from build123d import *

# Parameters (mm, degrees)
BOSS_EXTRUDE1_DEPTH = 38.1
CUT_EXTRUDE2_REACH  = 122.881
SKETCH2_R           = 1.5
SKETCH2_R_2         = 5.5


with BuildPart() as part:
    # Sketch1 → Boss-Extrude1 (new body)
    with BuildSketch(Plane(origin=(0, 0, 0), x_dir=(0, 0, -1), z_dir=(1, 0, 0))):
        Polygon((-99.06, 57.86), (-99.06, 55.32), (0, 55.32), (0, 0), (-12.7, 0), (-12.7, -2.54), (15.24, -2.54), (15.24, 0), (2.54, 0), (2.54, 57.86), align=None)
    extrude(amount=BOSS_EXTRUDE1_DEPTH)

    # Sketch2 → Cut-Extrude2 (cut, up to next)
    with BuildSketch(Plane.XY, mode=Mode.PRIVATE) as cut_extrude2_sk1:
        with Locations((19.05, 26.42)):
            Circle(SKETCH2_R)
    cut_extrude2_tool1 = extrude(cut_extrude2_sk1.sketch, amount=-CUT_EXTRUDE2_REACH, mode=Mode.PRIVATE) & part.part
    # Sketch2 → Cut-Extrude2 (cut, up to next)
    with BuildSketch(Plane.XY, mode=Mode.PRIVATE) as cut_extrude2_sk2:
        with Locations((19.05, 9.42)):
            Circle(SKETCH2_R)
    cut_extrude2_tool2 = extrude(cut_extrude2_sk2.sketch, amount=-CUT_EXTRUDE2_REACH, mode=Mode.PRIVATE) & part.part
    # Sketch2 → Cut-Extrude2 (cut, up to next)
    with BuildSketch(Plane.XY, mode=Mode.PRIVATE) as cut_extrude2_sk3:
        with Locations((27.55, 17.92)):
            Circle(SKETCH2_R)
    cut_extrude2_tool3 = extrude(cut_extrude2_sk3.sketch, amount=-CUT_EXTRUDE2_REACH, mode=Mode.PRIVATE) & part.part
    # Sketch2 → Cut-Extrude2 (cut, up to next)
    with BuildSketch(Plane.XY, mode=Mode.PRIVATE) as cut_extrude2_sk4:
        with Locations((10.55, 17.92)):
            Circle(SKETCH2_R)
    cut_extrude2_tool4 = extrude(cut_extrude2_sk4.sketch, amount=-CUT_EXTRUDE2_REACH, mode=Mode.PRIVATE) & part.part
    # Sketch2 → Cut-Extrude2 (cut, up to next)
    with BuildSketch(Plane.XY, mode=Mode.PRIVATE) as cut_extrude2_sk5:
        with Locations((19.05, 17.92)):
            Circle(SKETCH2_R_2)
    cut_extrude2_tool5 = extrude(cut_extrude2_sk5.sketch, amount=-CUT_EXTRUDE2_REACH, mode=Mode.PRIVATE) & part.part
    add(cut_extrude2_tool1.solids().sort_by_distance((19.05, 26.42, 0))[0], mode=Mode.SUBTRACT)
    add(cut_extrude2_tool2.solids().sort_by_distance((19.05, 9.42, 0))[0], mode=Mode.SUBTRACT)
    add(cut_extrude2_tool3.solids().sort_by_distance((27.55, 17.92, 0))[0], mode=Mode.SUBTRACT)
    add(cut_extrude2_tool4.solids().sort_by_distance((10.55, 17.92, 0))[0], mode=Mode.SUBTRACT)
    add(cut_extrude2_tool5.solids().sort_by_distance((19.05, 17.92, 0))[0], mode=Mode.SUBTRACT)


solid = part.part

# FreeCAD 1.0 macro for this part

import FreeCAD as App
import Part
import Sketcher
Q = App.Units.Quantity

doc = App.newDocument("Part")
body = doc.addObject("PartDesign::Body", "Body")

sketch1 = doc.addObject("Sketcher::SketchObject", "Sketch")
body.addObject(sketch1)
sketch1.AttachmentSupport = (doc.YZ_Plane, [""])
sketch1.MapMode = "FlatFace"
sketch1.addGeometry(Part.LineSegment(App.Vector(57.9, 99.1, 0), App.Vector(55.3, 99.1, 0)), False)
sketch1.addGeometry(Part.LineSegment(App.Vector(55.3, 99.1, 0), App.Vector(55.3, 0, 0)), False)
sketch1.addGeometry(Part.LineSegment(App.Vector(55.3, 0, 0), App.Vector(0, 0, 0)), False)
sketch1.addGeometry(Part.LineSegment(App.Vector(0, 0, 0), App.Vector(0, 12.7, 0)), False)
sketch1.addGeometry(Part.LineSegment(App.Vector(0, 12.7, 0), App.Vector(-2.5, 12.7, 0)), False)
sketch1.addGeometry(Part.LineSegment(App.Vector(-2.5, 12.7, 0), App.Vector(-2.5, -15.2, 0)), False)
sketch1.addGeometry(Part.LineSegment(App.Vector(-2.5, -15.2, 0), App.Vector(0, -15.2, 0)), False)
sketch1.addGeometry(Part.LineSegment(App.Vector(0, -15.2, 0), App.Vector(0, -2.5, 0)), False)
sketch1.addGeometry(Part.LineSegment(App.Vector(0, -2.5, 0), App.Vector(57.9, -2.5, 0)), False)
sketch1.addGeometry(Part.LineSegment(App.Vector(57.9, -2.5, 0), App.Vector(57.9, 99.1, 0)), False)
sketch1.addConstraint(Sketcher.Constraint("Coincident", 0, 2, 1, 1))
sketch1.addConstraint(Sketcher.Constraint("Coincident", 1, 2, 2, 1))
sketch1.addConstraint(Sketcher.Constraint("Coincident", 2, 2, 3, 1))
sketch1.addConstraint(Sketcher.Constraint("Coincident", 3, 2, 4, 1))
sketch1.addConstraint(Sketcher.Constraint("Coincident", 4, 2, 5, 1))
sketch1.addConstraint(Sketcher.Constraint("Coincident", 5, 2, 6, 1))
sketch1.addConstraint(Sketcher.Constraint("Coincident", 6, 2, 7, 1))
sketch1.addConstraint(Sketcher.Constraint("Coincident", 7, 2, 8, 1))
sketch1.addConstraint(Sketcher.Constraint("Coincident", 8, 2, 9, 1))
sketch1.addConstraint(Sketcher.Constraint("Coincident", 9, 2, 0, 1))
sketch1.addConstraint(Sketcher.Constraint("Horizontal", 0))
sketch1.addConstraint(Sketcher.Constraint("Vertical", 1))
sketch1.addConstraint(Sketcher.Constraint("Horizontal", 2))
sketch1.addConstraint(Sketcher.Constraint("Vertical", 3))
sketch1.addConstraint(Sketcher.Constraint("Horizontal", 4))
sketch1.addConstraint(Sketcher.Constraint("Vertical", 5))
sketch1.addConstraint(Sketcher.Constraint("Horizontal", 6))
sketch1.addConstraint(Sketcher.Constraint("Vertical", 7))
sketch1.addConstraint(Sketcher.Constraint("Horizontal", 8))
sketch1.addConstraint(Sketcher.Constraint("Vertical", 9))
sketch1.addConstraint(Sketcher.Constraint("Coincident", 2, 2, -1, 1))
sketch1.addConstraint(Sketcher.Constraint("PointOnObject", 6, 2, -2))
sketch1.addConstraint(Sketcher.Constraint("Equal", 0, 4))
sketch1.addConstraint(Sketcher.Constraint("Equal", 3, 7))
sketch1.addConstraint(Sketcher.Constraint("DistanceY", 9, 1, 9, 2, Q("4 in")))
sketch1.addConstraint(Sketcher.Constraint("DistanceX", 0, 2, 0, 1, Q("0.1 in")))
sketch1.addConstraint(Sketcher.Constraint("DistanceY", 1, 2, 1, 1, Q("3.9 in")))
sketch1.addConstraint(Sketcher.Constraint("DistanceY", 3, 1, 3, 2, Q("0.5 in")))
sketch1.addConstraint(Sketcher.Constraint("DistanceX", 2, 2, 2, 1, 55.32))
pad1 = doc.addObject("PartDesign::Pad", "Pad")
body.addObject(pad1)
pad1.Profile = sketch1
pad1.Length = Q("1.5 in")

sketch2 = doc.addObject("Sketcher::SketchObject", "Sketch001")
body.addObject(sketch2)
sketch2.AttachmentSupport = (doc.XY_Plane, [""])
sketch2.MapMode = "FlatFace"
sketch2.addGeometry(Part.Circle(App.Vector(19.1, 26.4, 0), App.Vector(0, 0, 1), 1.5), False)
sketch2.addConstraint(Sketcher.Constraint("Diameter", 0, 3.0))
sketch2.addConstraint(Sketcher.Constraint("DistanceX", -1, 1, 0, 3, Q("0.75 in")))
sketch2.addConstraint(Sketcher.Constraint("DistanceY", -1, 1, 0, 3, 26.42))
pocket1 = doc.addObject("PartDesign::Pocket", "Pocket")
body.addObject(pocket1)
pocket1.Profile = sketch2
pocket1.Type = "UpToFirst"

sketch3 = doc.addObject("Sketcher::SketchObject", "Sketch002")
body.addObject(sketch3)
sketch3.AttachmentSupport = (doc.XY_Plane, [""])
sketch3.MapMode = "FlatFace"
sketch3.addGeometry(Part.Circle(App.Vector(19.1, 9.4, 0), App.Vector(0, 0, 1), 1.5), False)
sketch3.addConstraint(Sketcher.Constraint("Diameter", 0, 3.0))
sketch3.addConstraint(Sketcher.Constraint("DistanceX", -1, 1, 0, 3, Q("0.75 in")))
sketch3.addConstraint(Sketcher.Constraint("DistanceY", -1, 1, 0, 3, 9.42))
pocket2 = doc.addObject("PartDesign::Pocket", "Pocket001")
body.addObject(pocket2)
pocket2.Profile = sketch3
pocket2.Type = "UpToFirst"

sketch4 = doc.addObject("Sketcher::SketchObject", "Sketch003")
body.addObject(sketch4)
sketch4.AttachmentSupport = (doc.XY_Plane, [""])
sketch4.MapMode = "FlatFace"
sketch4.addGeometry(Part.Circle(App.Vector(27.6, 17.9, 0), App.Vector(0, 0, 1), 1.5), False)
sketch4.addConstraint(Sketcher.Constraint("Diameter", 0, 3.0))
sketch4.addConstraint(Sketcher.Constraint("DistanceX", -1, 1, 0, 3, 27.55))
sketch4.addConstraint(Sketcher.Constraint("DistanceY", -1, 1, 0, 3, 17.92))
pocket3 = doc.addObject("PartDesign::Pocket", "Pocket002")
body.addObject(pocket3)
pocket3.Profile = sketch4
pocket3.Type = "UpToFirst"

sketch5 = doc.addObject("Sketcher::SketchObject", "Sketch004")
body.addObject(sketch5)
sketch5.AttachmentSupport = (doc.XY_Plane, [""])
sketch5.MapMode = "FlatFace"
sketch5.addGeometry(Part.Circle(App.Vector(10.6, 17.9, 0), App.Vector(0, 0, 1), 1.5), False)
sketch5.addConstraint(Sketcher.Constraint("Diameter", 0, 3.0))
sketch5.addConstraint(Sketcher.Constraint("DistanceX", -1, 1, 0, 3, 10.55))
sketch5.addConstraint(Sketcher.Constraint("DistanceY", -1, 1, 0, 3, 17.92))
pocket4 = doc.addObject("PartDesign::Pocket", "Pocket003")
body.addObject(pocket4)
pocket4.Profile = sketch5
pocket4.Type = "UpToFirst"

sketch6 = doc.addObject("Sketcher::SketchObject", "Sketch005")
body.addObject(sketch6)
sketch6.AttachmentSupport = (doc.XY_Plane, [""])
sketch6.MapMode = "FlatFace"
sketch6.addGeometry(Part.Circle(App.Vector(19, 18, 0), App.Vector(0, 0, 1), 6), False)
sketch6.addConstraint(Sketcher.Constraint("Diameter", 0, 11.0))
sketch6.addConstraint(Sketcher.Constraint("DistanceX", -1, 1, 0, 3, Q("0.75 in")))
sketch6.addConstraint(Sketcher.Constraint("DistanceY", -1, 1, 0, 3, 17.92))
pocket5 = doc.addObject("PartDesign::Pocket", "Pocket004")
body.addObject(pocket5)
pocket5.Profile = sketch6
pocket5.Type = "UpToFirst"

doc.recompute()
